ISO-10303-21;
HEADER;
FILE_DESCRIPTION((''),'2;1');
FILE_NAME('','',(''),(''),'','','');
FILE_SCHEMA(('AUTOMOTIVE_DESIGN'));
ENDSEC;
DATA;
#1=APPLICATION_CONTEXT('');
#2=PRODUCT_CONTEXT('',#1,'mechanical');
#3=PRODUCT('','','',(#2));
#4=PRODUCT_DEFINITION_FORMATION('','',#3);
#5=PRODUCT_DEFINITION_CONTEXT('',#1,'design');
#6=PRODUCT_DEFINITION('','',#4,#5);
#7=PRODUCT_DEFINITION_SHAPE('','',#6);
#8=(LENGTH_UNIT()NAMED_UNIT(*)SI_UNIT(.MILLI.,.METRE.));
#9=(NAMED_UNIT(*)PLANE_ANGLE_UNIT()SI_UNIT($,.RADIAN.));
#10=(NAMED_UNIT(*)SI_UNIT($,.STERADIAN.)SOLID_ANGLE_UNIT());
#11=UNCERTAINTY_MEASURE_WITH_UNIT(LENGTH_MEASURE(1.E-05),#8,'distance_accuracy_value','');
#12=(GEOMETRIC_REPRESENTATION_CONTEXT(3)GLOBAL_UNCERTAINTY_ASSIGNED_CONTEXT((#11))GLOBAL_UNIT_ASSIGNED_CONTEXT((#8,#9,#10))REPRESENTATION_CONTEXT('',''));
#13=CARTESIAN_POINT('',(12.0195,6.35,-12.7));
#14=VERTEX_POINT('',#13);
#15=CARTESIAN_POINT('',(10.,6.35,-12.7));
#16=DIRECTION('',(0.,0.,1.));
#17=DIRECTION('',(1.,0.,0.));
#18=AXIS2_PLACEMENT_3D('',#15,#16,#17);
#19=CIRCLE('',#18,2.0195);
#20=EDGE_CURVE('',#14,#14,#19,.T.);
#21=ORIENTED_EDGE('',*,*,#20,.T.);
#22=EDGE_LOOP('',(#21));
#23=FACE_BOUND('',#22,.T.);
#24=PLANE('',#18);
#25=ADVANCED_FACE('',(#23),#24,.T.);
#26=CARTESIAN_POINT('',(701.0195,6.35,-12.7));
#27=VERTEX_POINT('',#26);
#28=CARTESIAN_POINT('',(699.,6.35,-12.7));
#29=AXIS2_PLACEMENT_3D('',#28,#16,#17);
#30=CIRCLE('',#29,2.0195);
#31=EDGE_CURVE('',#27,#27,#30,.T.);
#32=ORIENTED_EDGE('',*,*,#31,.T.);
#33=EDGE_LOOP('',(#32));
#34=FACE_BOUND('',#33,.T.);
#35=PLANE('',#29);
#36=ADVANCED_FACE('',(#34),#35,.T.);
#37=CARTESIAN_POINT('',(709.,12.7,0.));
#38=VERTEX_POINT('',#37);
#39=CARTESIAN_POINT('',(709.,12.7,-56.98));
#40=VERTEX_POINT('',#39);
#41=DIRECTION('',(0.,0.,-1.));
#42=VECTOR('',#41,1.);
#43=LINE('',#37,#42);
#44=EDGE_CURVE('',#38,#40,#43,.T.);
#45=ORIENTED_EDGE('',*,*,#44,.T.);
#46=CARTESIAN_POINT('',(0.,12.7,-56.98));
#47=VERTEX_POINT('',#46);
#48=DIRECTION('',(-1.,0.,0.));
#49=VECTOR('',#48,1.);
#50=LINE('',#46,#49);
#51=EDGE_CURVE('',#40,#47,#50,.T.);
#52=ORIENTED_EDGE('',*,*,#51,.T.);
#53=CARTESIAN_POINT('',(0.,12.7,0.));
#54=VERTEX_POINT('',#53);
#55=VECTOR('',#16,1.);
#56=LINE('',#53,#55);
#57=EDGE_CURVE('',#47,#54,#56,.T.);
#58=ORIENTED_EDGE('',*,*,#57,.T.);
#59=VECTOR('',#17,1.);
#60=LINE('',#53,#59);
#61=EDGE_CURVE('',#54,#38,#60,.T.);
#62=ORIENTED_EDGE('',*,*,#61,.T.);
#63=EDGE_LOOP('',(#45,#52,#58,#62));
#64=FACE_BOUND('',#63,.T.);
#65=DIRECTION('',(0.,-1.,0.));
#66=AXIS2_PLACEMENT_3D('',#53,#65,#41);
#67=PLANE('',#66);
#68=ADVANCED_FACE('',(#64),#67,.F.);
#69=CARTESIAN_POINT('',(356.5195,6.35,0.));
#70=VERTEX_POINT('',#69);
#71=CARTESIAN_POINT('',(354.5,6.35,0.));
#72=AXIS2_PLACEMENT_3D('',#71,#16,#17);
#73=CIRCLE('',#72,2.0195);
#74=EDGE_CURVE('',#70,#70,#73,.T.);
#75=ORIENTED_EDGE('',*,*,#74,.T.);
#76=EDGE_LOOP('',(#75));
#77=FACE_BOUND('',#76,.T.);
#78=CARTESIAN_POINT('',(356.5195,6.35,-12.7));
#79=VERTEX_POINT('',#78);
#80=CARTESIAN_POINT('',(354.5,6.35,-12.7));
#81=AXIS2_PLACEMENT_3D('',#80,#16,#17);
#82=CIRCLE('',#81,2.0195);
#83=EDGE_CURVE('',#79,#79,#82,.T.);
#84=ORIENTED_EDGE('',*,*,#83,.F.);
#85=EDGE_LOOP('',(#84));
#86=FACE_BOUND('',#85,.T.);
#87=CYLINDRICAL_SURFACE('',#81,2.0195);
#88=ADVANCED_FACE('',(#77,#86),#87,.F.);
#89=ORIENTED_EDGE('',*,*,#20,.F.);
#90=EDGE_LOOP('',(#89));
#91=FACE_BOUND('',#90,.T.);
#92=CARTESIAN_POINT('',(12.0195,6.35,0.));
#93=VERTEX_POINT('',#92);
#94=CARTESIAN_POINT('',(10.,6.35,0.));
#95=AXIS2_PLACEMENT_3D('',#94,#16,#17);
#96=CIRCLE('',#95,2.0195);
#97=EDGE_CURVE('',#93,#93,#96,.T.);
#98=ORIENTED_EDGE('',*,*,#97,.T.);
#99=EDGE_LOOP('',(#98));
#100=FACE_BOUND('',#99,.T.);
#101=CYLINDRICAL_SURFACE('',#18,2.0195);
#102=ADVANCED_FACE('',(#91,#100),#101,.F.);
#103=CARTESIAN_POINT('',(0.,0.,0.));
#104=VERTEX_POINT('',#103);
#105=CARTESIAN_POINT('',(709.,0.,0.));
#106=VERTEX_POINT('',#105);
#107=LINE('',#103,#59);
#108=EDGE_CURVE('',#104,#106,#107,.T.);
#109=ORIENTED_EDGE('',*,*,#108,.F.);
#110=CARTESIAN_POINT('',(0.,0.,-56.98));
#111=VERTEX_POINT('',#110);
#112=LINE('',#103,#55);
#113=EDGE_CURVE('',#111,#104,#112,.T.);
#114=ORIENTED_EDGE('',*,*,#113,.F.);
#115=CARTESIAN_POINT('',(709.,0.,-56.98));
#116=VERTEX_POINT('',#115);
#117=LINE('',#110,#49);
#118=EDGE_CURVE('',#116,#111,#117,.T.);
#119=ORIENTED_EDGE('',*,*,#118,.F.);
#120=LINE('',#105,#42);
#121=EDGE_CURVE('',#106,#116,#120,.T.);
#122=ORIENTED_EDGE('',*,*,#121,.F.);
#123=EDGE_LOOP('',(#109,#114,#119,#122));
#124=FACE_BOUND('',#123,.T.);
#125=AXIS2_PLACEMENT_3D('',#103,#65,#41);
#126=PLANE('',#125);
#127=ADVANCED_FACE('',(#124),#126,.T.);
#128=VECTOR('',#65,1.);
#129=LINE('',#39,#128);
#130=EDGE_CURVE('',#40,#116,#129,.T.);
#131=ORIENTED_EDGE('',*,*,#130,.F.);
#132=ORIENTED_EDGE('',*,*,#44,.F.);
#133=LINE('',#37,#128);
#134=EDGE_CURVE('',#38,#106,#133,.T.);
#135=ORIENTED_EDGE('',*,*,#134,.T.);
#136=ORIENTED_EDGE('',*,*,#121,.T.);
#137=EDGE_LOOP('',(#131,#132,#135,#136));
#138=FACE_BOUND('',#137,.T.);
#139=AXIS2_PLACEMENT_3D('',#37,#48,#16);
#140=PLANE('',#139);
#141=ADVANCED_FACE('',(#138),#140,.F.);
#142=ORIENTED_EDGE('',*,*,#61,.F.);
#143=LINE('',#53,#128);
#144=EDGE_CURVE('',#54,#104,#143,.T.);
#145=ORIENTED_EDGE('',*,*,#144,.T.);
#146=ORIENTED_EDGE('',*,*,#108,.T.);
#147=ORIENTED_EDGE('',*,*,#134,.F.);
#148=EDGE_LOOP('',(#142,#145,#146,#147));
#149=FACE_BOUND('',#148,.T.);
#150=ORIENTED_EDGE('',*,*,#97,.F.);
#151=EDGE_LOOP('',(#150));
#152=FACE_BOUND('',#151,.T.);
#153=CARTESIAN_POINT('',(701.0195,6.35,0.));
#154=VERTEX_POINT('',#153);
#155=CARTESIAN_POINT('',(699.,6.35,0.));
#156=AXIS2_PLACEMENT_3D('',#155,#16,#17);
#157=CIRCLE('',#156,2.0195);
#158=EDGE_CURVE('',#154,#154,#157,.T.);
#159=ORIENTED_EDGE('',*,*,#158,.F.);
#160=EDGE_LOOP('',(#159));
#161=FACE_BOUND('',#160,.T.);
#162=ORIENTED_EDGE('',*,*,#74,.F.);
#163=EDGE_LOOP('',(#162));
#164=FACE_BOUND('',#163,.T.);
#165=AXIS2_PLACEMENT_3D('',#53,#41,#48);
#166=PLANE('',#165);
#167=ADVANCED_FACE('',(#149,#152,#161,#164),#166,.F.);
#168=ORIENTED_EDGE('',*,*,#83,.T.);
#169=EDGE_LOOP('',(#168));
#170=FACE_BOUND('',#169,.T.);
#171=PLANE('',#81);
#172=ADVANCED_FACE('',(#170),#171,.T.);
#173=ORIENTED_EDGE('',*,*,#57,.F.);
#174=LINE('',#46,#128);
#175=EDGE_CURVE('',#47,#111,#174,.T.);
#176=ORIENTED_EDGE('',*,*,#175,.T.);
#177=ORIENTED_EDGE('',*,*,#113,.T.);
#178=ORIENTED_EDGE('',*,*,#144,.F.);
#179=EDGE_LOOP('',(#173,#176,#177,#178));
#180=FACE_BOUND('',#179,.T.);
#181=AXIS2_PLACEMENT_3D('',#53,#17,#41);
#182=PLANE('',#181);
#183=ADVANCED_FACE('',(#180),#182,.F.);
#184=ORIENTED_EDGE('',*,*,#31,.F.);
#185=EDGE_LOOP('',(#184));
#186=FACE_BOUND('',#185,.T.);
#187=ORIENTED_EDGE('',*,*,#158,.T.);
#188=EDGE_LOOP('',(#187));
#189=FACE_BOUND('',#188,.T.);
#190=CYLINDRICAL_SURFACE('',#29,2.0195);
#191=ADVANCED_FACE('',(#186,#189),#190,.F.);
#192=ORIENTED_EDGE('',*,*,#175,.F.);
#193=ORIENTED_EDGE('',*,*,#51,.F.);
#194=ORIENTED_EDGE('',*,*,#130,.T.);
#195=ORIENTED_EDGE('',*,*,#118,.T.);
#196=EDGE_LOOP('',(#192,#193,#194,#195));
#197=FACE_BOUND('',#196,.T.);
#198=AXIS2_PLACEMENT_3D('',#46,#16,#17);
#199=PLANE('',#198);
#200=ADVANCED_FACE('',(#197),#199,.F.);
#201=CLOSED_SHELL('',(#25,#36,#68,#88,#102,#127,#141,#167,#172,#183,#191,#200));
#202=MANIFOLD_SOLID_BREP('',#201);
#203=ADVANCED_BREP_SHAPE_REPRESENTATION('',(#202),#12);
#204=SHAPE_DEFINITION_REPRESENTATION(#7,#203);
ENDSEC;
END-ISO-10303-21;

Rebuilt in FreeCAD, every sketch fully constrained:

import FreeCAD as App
import Part
import Sketcher
from FreeCAD import Vector
Q = App.Units.Quantity


def add_polygon(sketch, points):
    """Adds a closed chain of lines whose ends are joined by coincident constraints."""
    first, n = sketch.GeometryCount, len(points)
    for a, b in zip(points, points[1:] + points[:1]):
        sketch.addGeometry(Part.LineSegment(App.Vector(*a, 0), App.Vector(*b, 0)), False)
    for i in range(n):
        sketch.addConstraint(Sketcher.Constraint("Coincident", first + i, 2, first + (i + 1) % n, 1))

doc = App.newDocument("Part")
body = doc.addObject("PartDesign::Body", "Body")

# Sketch on XZ plane
sketch1 = body.newObject("Sketcher::SketchObject", "Sketch")
sketch1.AttachmentSupport = (doc.getObject("XZ_Plane"), [""])
sketch1.MapMode = "FlatFace"
add_polygon(sketch1, [(0, -56.98), (0, 0), (709, 0), (709, -56.98)])  # lines 0-3
sketch1.addConstraint([
    Sketcher.Constraint("Vertical", 0),
    Sketcher.Constraint("Horizontal", 1),
    Sketcher.Constraint("Vertical", 2),
    Sketcher.Constraint("Horizontal", 3),
    Sketcher.Constraint("Coincident", 0, 2, -1, 1),
    Sketcher.Constraint("DistanceX", 1, 1, 1, 2, Q("709 mm")),
    Sketcher.Constraint("DistanceY", 0, 1, 0, 2, Q("56.98 mm")),
])
pad1 = body.newObject("PartDesign::Pad", "Pad")
pad1.Profile = sketch1
pad1.Length = 12.7
pad1.Reversed = True

# Sketch on XY plane
sketch2 = body.newObject("Sketcher::SketchObject", "Sketch001")
sketch2.AttachmentSupport = (doc.getObject("XY_Plane"), [""])
sketch2.MapMode = "FlatFace"
sketch2.addGeometry([
    Part.Circle(Vector(699, 6.35, 0), Vector(0, 0, 1), 2.0195),
    Part.Circle(Vector(354.5, 6.35, 0), Vector(0, 0, 1), 2.0195),
    Part.Circle(Vector(10, 6.35, 0), Vector(0, 0, 1), 2.0195),
], False)
sketch2.addConstraint([
    Sketcher.Constraint("Equal", 0, 1),
    Sketcher.Constraint("Equal", 1, 2),
    Sketcher.Constraint("Horizontal", 0, 3, 1, 3),
    Sketcher.Constraint("Horizontal", 1, 3, 2, 3),
    Sketcher.Constraint("Diameter", 0, Q("4.039 mm")),
    Sketcher.Constraint("DistanceX", -1, 1, 0, 3, Q("699 mm")),
    Sketcher.Constraint("DistanceX", -1, 1, 2, 3, Q("10 mm")),
    Sketcher.Constraint("DistanceX", -1, 1, 1, 3, Q("354.5 mm")),
    Sketcher.Constraint("DistanceY", -1, 1, 0, 3, Q("6.35 mm")),
])
pocket1 = body.newObject("PartDesign::Pocket", "Pocket")
pocket1.Profile = sketch2
pocket1.Length = 12.7

doc.recompute()
